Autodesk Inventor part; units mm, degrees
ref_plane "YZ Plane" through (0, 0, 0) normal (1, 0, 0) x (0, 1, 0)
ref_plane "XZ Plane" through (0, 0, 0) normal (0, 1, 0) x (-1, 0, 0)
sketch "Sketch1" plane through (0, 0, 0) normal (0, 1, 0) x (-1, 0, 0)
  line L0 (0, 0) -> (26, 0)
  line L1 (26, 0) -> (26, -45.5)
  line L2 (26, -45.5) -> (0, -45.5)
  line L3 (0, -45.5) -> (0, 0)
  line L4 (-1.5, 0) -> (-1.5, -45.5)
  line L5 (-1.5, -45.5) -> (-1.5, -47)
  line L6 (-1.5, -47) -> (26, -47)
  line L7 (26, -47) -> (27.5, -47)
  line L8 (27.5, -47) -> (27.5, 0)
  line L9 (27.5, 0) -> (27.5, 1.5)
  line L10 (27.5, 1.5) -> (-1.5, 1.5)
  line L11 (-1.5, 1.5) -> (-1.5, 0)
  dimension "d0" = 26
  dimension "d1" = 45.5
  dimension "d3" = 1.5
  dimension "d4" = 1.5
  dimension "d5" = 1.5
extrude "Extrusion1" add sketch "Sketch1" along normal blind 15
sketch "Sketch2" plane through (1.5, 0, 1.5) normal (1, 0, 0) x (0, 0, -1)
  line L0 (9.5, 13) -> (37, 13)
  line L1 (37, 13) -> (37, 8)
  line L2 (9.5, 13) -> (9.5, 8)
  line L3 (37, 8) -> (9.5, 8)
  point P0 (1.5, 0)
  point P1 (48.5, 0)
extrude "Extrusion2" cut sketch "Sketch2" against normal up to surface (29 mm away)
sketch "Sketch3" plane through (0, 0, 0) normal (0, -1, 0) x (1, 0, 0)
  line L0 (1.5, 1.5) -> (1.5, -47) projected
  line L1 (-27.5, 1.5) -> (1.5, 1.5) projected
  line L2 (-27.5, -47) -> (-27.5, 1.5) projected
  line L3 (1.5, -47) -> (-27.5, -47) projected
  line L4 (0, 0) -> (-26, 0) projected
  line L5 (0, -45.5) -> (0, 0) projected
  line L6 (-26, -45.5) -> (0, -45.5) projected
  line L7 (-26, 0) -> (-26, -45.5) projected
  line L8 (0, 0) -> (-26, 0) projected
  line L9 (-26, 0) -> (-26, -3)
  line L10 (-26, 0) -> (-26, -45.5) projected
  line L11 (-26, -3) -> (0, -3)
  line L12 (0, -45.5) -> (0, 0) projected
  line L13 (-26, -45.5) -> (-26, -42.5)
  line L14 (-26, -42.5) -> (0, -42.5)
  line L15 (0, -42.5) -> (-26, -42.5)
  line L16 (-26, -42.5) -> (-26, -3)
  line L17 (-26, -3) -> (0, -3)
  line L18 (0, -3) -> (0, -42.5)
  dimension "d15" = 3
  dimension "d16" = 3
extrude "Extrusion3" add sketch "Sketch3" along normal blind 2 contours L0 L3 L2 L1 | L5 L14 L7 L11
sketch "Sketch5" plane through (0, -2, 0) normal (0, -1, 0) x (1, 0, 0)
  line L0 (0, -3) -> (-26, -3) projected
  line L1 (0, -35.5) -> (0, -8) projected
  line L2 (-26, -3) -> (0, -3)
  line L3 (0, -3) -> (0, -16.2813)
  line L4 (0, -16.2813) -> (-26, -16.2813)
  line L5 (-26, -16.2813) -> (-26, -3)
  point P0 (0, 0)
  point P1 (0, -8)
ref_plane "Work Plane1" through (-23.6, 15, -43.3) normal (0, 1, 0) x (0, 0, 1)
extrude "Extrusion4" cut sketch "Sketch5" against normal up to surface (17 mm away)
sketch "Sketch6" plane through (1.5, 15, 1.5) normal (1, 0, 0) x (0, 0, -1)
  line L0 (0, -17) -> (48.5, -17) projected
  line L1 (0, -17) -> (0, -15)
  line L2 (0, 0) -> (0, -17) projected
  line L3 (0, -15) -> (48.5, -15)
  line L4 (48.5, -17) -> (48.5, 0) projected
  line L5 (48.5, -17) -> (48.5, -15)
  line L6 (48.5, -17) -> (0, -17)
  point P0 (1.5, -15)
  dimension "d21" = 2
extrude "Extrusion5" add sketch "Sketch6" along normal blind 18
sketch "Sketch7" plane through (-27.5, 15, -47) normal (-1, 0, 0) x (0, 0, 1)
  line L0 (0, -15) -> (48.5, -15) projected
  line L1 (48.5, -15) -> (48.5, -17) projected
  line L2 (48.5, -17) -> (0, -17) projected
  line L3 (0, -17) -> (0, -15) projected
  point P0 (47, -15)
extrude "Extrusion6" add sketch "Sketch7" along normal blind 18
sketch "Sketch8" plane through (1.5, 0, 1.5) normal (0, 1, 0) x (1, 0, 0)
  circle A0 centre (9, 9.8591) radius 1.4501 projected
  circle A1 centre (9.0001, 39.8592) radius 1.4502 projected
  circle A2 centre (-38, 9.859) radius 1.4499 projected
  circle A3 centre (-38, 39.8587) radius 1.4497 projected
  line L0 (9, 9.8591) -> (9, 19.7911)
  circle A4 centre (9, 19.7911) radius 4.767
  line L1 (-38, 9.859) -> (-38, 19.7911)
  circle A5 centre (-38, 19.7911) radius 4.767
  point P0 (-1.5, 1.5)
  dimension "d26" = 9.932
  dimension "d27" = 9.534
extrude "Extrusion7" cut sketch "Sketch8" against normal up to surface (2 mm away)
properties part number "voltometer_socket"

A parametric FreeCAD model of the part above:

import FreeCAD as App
import Part
import Sketcher
Q = App.Units.Quantity

doc = App.newDocument("Part")
body = doc.addObject("PartDesign::Body", "Body")

sketch1 = body.newObject("Sketcher::SketchObject", "Sketch")
sketch1.AttachmentSupport = (doc.getObject("XZ_Plane"), [""])
sketch1.MapMode = "FlatFace"
sketch1.addGeometry(Part.LineSegment(App.Vector(2, 2, 0), App.Vector(2, -47, 0)), False)
sketch1.addGeometry(Part.LineSegment(App.Vector(2, -47, 0), App.Vector(-28, -47, 0)), False)
sketch1.addGeometry(Part.LineSegment(App.Vector(-28, -47, 0), App.Vector(-28, 2, 0)), False)
sketch1.addGeometry(Part.LineSegment(App.Vector(-28, 2, 0), App.Vector(2, 2, 0)), False)
sketch1.addGeometry(Part.LineSegment(App.Vector(0, -46, 0), App.Vector(0, 0, 0)), False)
sketch1.addGeometry(Part.LineSegment(App.Vector(0, 0, 0), App.Vector(-26, 0, 0)), False)
sketch1.addGeometry(Part.LineSegment(App.Vector(-26, 0, 0), App.Vector(-26, -46, 0)), False)
sketch1.addGeometry(Part.LineSegment(App.Vector(-26, -46, 0), App.Vector(0, -46, 0)), False)
sketch1.addConstraint(Sketcher.Constraint("Coincident", 0, 2, 1, 1))
sketch1.addConstraint(Sketcher.Constraint("Coincident", 1, 2, 2, 1))
sketch1.addConstraint(Sketcher.Constraint("Coincident", 2, 2, 3, 1))
sketch1.addConstraint(Sketcher.Constraint("Coincident", 3, 2, 0, 1))
sketch1.addConstraint(Sketcher.Constraint("Coincident", 4, 2, 5, 1))
sketch1.addConstraint(Sketcher.Constraint("Coincident", 5, 2, 6, 1))
sketch1.addConstraint(Sketcher.Constraint("Coincident", 6, 2, 7, 1))
sketch1.addConstraint(Sketcher.Constraint("Coincident", 7, 2, 4, 1))
sketch1.addConstraint(Sketcher.Constraint("Vertical", 0))
sketch1.addConstraint(Sketcher.Constraint("Horizontal", 1))
sketch1.addConstraint(Sketcher.Constraint("Vertical", 2))
sketch1.addConstraint(Sketcher.Constraint("Horizontal", 3))
sketch1.addConstraint(Sketcher.Constraint("Vertical", 4))
sketch1.addConstraint(Sketcher.Constraint("Horizontal", 5))
sketch1.addConstraint(Sketcher.Constraint("Vertical", 6))
sketch1.addConstraint(Sketcher.Constraint("Horizontal", 7))
sketch1.addConstraint(Sketcher.Constraint("Coincident", 4, 2, -1, 1))
sketch1.addConstraint(Sketcher.Constraint("DistanceX", 5, 2, 5, 1, Q("26 mm")))
sketch1.addConstraint(Sketcher.Constraint("DistanceY", 4, 1, 4, 2, Q("45.5 mm")))
sketch1.addConstraint(Sketcher.Constraint("DistanceX", -1, 1, 0, 2, Q("1.5 mm")))
sketch1.addConstraint(Sketcher.Constraint("DistanceY", -1, 1, 2, 2, Q("1.5 mm")))
sketch1.addConstraint(Sketcher.Constraint("DistanceX", 2, 2, 5, 2, Q("1.5 mm")))
sketch1.addConstraint(Sketcher.Constraint("DistanceY", 1, 2, 6, 2, Q("1.5 mm")))
pad1 = body.newObject("PartDesign::Pad", "Pad")
pad1.Profile = sketch1
pad1.Length = 15
pad1.Reversed = True

sketch2 = body.newObject("Sketcher::SketchObject", "Sketch001")
sketch2.AttachmentSupport = (doc.getObject("YZ_Plane"), [""])
sketch2.MapMode = "FlatFace"
sketch2.AttachmentOffset = App.Placement(App.Vector(0, 0, 1.5), App.Rotation())
sketch2.addGeometry(Part.LineSegment(App.Vector(13, -36, 0), App.Vector(13, -8, 0)), False)
sketch2.addGeometry(Part.LineSegment(App.Vector(13, -8, 0), App.Vector(8, -8, 0)), False)
sketch2.addGeometry(Part.LineSegment(App.Vector(8, -8, 0), App.Vector(8, -36, 0)), False)
sketch2.addGeometry(Part.LineSegment(App.Vector(8, -36, 0), App.Vector(13, -36, 0)), False)
sketch2.addConstraint(Sketcher.Constraint("Coincident", 0, 2, 1, 1))
sketch2.addConstraint(Sketcher.Constraint("Coincident", 1, 2, 2, 1))
sketch2.addConstraint(Sketcher.Constraint("Coincident", 2, 2, 3, 1))
sketch2.addConstraint(Sketcher.Constraint("Coincident", 3, 2, 0, 1))
sketch2.addConstraint(Sketcher.Constraint("Vertical", 0))
sketch2.addConstraint(Sketcher.Constraint("Horizontal", 1))
sketch2.addConstraint(Sketcher.Constraint("Vertical", 2))
sketch2.addConstraint(Sketcher.Constraint("Horizontal", 3))
sketch2.addConstraint(Sketcher.Constraint("DistanceX", 1, 2, 1, 1, Q("5 mm")))
sketch2.addConstraint(Sketcher.Constraint("DistanceY", 0, 1, 0, 2, Q("27.5 mm")))
sketch2.addConstraint(Sketcher.Constraint("DistanceX", -1, 1, 0, 2, Q("13 mm")))
sketch2.addConstraint(Sketcher.Constraint("DistanceY", 0, 2, -1, 1, Q("8 mm")))
pocket1 = body.newObject("PartDesign::Pocket", "Pocket")
pocket1.Profile = sketch2
pocket1.Length = 29

sketch3 = body.newObject("Sketcher::SketchObject", "Sketch002")
sketch3.AttachmentSupport = (doc.getObject("XZ_Plane"), [""])
sketch3.MapMode = "FlatFace"
sketch3.addGeometry(Part.LineSegment(App.Vector(1.5, -47, 0), App.Vector(1.5, 1.5, 0)), False)
sketch3.addGeometry(Part.LineSegment(App.Vector(1.5, 1.5, 0), App.Vector(-27.5, 1.5, 0)), False)
sketch3.addGeometry(Part.LineSegment(App.Vector(-27.5, 1.5, 0), App.Vector(-27.5, -47, 0)), False)
sketch3.addGeometry(Part.LineSegment(App.Vector(-27.5, -47, 0), App.Vector(1.5, -47, 0)), False)
sketch3.addGeometry(Part.LineSegment(App.Vector(-26, 0, 0), App.Vector(0, 0, 0)), False)
sketch3.addGeometry(Part.LineSegment(App.Vector(0, 0, 0), App.Vector(0, -3, 0)), False)
sketch3.addGeometry(Part.LineSegment(App.Vector(0, -3, 0), App.Vector(-26, -3, 0)), False)
sketch3.addGeometry(Part.LineSegment(App.Vector(-26, -3, 0), App.Vector(-26, 0, 0)), False)
sketch3.addGeometry(Part.LineSegment(App.Vector(-26, -45.5, 0), App.Vector(-26, -42.5, 0)), False)
sketch3.addGeometry(Part.LineSegment(App.Vector(-26, -42.5, 0), App.Vector(0, -42.5, 0)), False)
sketch3.addGeometry(Part.LineSegment(App.Vector(0, -42.5, 0), App.Vector(0, -45.5, 0)), False)
sketch3.addGeometry(Part.LineSegment(App.Vector(0, -45.5, 0), App.Vector(-26, -45.5, 0)), False)
sketch3.addConstraint(Sketcher.Constraint("Coincident", 0, 2, 1, 1))
sketch3.addConstraint(Sketcher.Constraint("Coincident", 1, 2, 2, 1))
sketch3.addConstraint(Sketcher.Constraint("Coincident", 2, 2, 3, 1))
sketch3.addConstraint(Sketcher.Constraint("Coincident", 3, 2, 0, 1))
sketch3.addConstraint(Sketcher.Constraint("Coincident", 4, 2, 5, 1))
sketch3.addConstraint(Sketcher.Constraint("Coincident", 5, 2, 6, 1))
sketch3.addConstraint(Sketcher.Constraint("Coincident", 6, 2, 7, 1))
sketch3.addConstraint(Sketcher.Constraint("Coincident", 7, 2, 4, 1))
sketch3.addConstraint(Sketcher.Constraint("Coincident", 8, 2, 9, 1))
sketch3.addConstraint(Sketcher.Constraint("Coincident", 9, 2, 10, 1))
sketch3.addConstraint(Sketcher.Constraint("Coincident", 10, 2, 11, 1))
sketch3.addConstraint(Sketcher.Constraint("Coincident", 11, 2, 8, 1))
sketch3.addConstraint(Sketcher.Constraint("Vertical", 0))
sketch3.addConstraint(Sketcher.Constraint("Horizontal", 1))
sketch3.addConstraint(Sketcher.Constraint("Vertical", 2))
sketch3.addConstraint(Sketcher.Constraint("Horizontal", 3))
sketch3.addConstraint(Sketcher.Constraint("Horizontal", 4))
sketch3.addConstraint(Sketcher.Constraint("Vertical", 5))
sketch3.addConstraint(Sketcher.Constraint("Horizontal", 6))
sketch3.addConstraint(Sketcher.Constraint("Vertical", 7))
sketch3.addConstraint(Sketcher.Constraint("Vertical", 8))
sketch3.addConstraint(Sketcher.Constraint("Horizontal", 9))
sketch3.addConstraint(Sketcher.Constraint("Vertical", 10))
sketch3.addConstraint(Sketcher.Constraint("Horizontal", 11))
sketch3.addConstraint(Sketcher.Constraint("Coincident", 4, 2, -1, 1))
sketch3.addConstraint(Sketcher.Constraint("PointOnObject", 9, 2, -2))
sketch3.addConstraint(Sketcher.Constraint("Vertical", 7, 2, 8, 2))
sketch3.addConstraint(Sketcher.Constraint("Equal", 7, 8))
sketch3.addConstraint(Sketcher.Constraint("DistanceY", 5, 2, 5, 1, Q("3 mm")))
sketch3.addConstraint(Sketcher.Constraint("DistanceX", 1, 2, 1, 1, Q("29 mm")))
sketch3.addConstraint(Sketcher.Constraint("DistanceX", 4, 1, 4, 2, Q("26 mm")))
sketch3.addConstraint(Sketcher.Constraint("DistanceY", 0, 1, 0, 2, Q("48.5 mm")))
sketch3.addConstraint(Sketcher.Constraint("DistanceY", 2, 2, -1, 1, Q("47 mm")))
sketch3.addConstraint(Sketcher.Constraint("DistanceY", 8, 2, 1, 2, Q("44 mm")))
sketch3.addConstraint(Sketcher.Constraint("DistanceX", -1, 1, 0, 2, Q("1.5 mm")))
pad2 = body.newObject("PartDesign::Pad", "Pad001")
pad2.Profile = sketch3
pad2.Length = 2

sketch4 = body.newObject("Sketcher::SketchObject", "Sketch003")
sketch4.AttachmentSupport = (doc.getObject("XZ_Plane"), [""])
sketch4.MapMode = "FlatFace"
sketch4.AttachmentOffset = App.Placement(App.Vector(0, 0, 2), App.Rotation())
sketch4.addGeometry(Part.LineSegment(App.Vector(0, -16, 0), App.Vector(0, -3, 0)), False)
sketch4.addGeometry(Part.LineSegment(App.Vector(0, -3, 0), App.Vector(-26, -3, 0)), False)
sketch4.addGeometry(Part.LineSegment(App.Vector(-26, -3, 0), App.Vector(-26, -16, 0)), False)
sketch4.addGeometry(Part.LineSegment(App.Vector(-26, -16, 0), App.Vector(0, -16, 0)), False)
sketch4.addConstraint(Sketcher.Constraint("Coincident", 0, 2, 1, 1))
sketch4.addConstraint(Sketcher.Constraint("Coincident", 1, 2, 2, 1))
sketch4.addConstraint(Sketcher.Constraint("Coincident", 2, 2, 3, 1))
sketch4.addConstraint(Sketcher.Constraint("Coincident", 3, 2, 0, 1))
sketch4.addConstraint(Sketcher.Constraint("Vertical", 0))
sketch4.addConstraint(Sketcher.Constraint("Horizontal", 1))
sketch4.addConstraint(Sketcher.Constraint("Vertical", 2))
sketch4.addConstraint(Sketcher.Constraint("Horizontal", 3))
sketch4.addConstraint(Sketcher.Constraint("PointOnObject", 0, 2, -2))
sketch4.addConstraint(Sketcher.Constraint("DistanceX", 1, 2, 1, 1, Q("26 mm")))
sketch4.addConstraint(Sketcher.Constraint("DistanceY", 0, 2, -1, 1, Q("3 mm")))
sketch4.addConstraint(Sketcher.Constraint("DistanceY", 0, 1, 0, 2, Q("13.2813 mm")))
pocket2 = body.newObject("PartDesign::Pocket", "Pocket001")
pocket2.Profile = sketch4
pocket2.Length = 17

sketch5 = body.newObject("Sketcher::SketchObject", "Sketch004")
sketch5.AttachmentSupport = (doc.getObject("YZ_Plane"), [""])
sketch5.MapMode = "FlatFace"
sketch5.AttachmentOffset = App.Placement(App.Vector(0, 0, 1.5), App.Rotation())
sketch5.addGeometry(Part.LineSegment(App.Vector(0, 1.5, 0), App.Vector(-2, 1.5, 0)), False)
sketch5.addGeometry(Part.LineSegment(App.Vector(-2, 1.5, 0), App.Vector(-2, -47, 0)), False)
sketch5.addGeometry(Part.LineSegment(App.Vector(-2, -47, 0), App.Vector(0, -47, 0)), False)
sketch5.addGeometry(Part.LineSegment(App.Vector(0, -47, 0), App.Vector(0, 1.5, 0)), False)
sketch5.addConstraint(Sketcher.Constraint("Coincident", 0, 2, 1, 1))
sketch5.addConstraint(Sketcher.Constraint("Coincident", 1, 2, 2, 1))
sketch5.addConstraint(Sketcher.Constraint("Coincident", 2, 2, 3, 1))
sketch5.addConstraint(Sketcher.Constraint("Coincident", 3, 2, 0, 1))
sketch5.addConstraint(Sketcher.Constraint("Horizontal", 0))
sketch5.addConstraint(Sketcher.Constraint("Vertical", 1))
sketch5.addConstraint(Sketcher.Constraint("Horizontal", 2))
sketch5.addConstraint(Sketcher.Constraint("Vertical", 3))
sketch5.addConstraint(Sketcher.Constraint("PointOnObject", 2, 2, -2))
sketch5.addConstraint(Sketcher.Constraint("DistanceX", 0, 2, 0, 1, Q("2 mm")))
sketch5.addConstraint(Sketcher.Constraint("DistanceY", 1, 2, 1, 1, Q("48.5 mm")))
sketch5.addConstraint(Sketcher.Constraint("DistanceY", 1, 2, -1, 1, Q("47 mm")))
pad3 = body.newObject("PartDesign::Pad", "Pad002")
pad3.Profile = sketch5
pad3.Length = 18

sketch6 = body.newObject("Sketcher::SketchObject", "Sketch005")
sketch6.AttachmentSupport = (doc.getObject("YZ_Plane"), [""])
sketch6.MapMode = "FlatFace"
sketch6.AttachmentOffset = App.Placement(App.Vector(0, 0, -27.5), App.Rotation())
sketch6.addGeometry(Part.LineSegment(App.Vector(0, 1.5, 0), App.Vector(0, -47, 0)), False)
sketch6.addGeometry(Part.LineSegment(App.Vector(0, -47, 0), App.Vector(-2, -47, 0)), False)
sketch6.addGeometry(Part.LineSegment(App.Vector(-2, -47, 0), App.Vector(-2, 1.5, 0)), False)
sketch6.addGeometry(Part.LineSegment(App.Vector(-2, 1.5, 0), App.Vector(0, 1.5, 0)), False)
sketch6.addConstraint(Sketcher.Constraint("Coincident", 0, 2, 1, 1))
sketch6.addConstraint(Sketcher.Constraint("Coincident", 1, 2, 2, 1))
sketch6.addConstraint(Sketcher.Constraint("Coincident", 2, 2, 3, 1))
sketch6.addConstraint(Sketcher.Constraint("Coincident", 3, 2, 0, 1))
sketch6.addConstraint(Sketcher.Constraint("Vertical", 0))
sketch6.addConstraint(Sketcher.Constraint("Horizontal", 1))
sketch6.addConstraint(Sketcher.Constraint("Vertical", 2))
sketch6.addConstraint(Sketcher.Constraint("Horizontal", 3))
sketch6.addConstraint(Sketcher.Constraint("PointOnObject", 0, 2, -2))
sketch6.addConstraint(Sketcher.Constraint("DistanceX", 1, 2, 1, 1, Q("2 mm")))
sketch6.addConstraint(Sketcher.Constraint("DistanceY", 0, 2, 0, 1, Q("48.5 mm")))
sketch6.addConstraint(Sketcher.Constraint("DistanceY", 0, 2, -1, 1, Q("47 mm")))
pad4 = body.newObject("PartDesign::Pad", "Pad003")
pad4.Profile = sketch6
pad4.Length = 18
pad4.Reversed = True

sketch7 = body.newObject("Sketcher::SketchObject", "Sketch006")
sketch7.AttachmentSupport = (doc.getObject("XZ_Plane"), [""])
sketch7.MapMode = "FlatFace"
sketch7.addGeometry(Part.Circle(App.Vector(10.5, -8.4, 0), App.Vector(0, 0, 1), 1.5), False)
sketch7.addGeometry(Part.Circle(App.Vector(10.5, -18.3, 0), App.Vector(0, 0, 1), 4.8), False)
sketch7.addGeometry(Part.Circle(App.Vector(10.5, -38.4, 0), App.Vector(0, 0, 1), 1.5), False)
sketch7.addGeometry(Part.Circle(App.Vector(-36.5, -8.4, 0), App.Vector(0, 0, 1), 1.4), False)
sketch7.addGeometry(Part.Circle(App.Vector(-36.5, -18.3, 0), App.Vector(0, 0, 1), 4.8), False)
sketch7.addGeometry(Part.Circle(App.Vector(-36.5, -38.4, 0), App.Vector(0, 0, 1), 1.4), False)
sketch7.addConstraint(Sketcher.Constraint("Equal", 0, 2))
sketch7.addConstraint(Sketcher.Constraint("Equal", 0, 3))
sketch7.addConstraint(Sketcher.Constraint("Equal", 1, 4))
sketch7.addConstraint(Sketcher.Constraint("Equal", 3, 5))
sketch7.addConstraint(Sketcher.Constraint("Horizontal", 0, 3, 3, 3))
sketch7.addConstraint(Sketcher.Constraint("Horizontal", 1, 3, 4, 3))
sketch7.addConstraint(Sketcher.Constraint("Vertical", 0, 3, 1, 3))
sketch7.addConstraint(Sketcher.Constraint("Vertical", 1, 3, 2, 3))
sketch7.addConstraint(Sketcher.Constraint("Vertical", 3, 3, 4, 3))
sketch7.addConstraint(Sketcher.Constraint("Vertical", 4, 3, 5, 3))
sketch7.addConstraint(Sketcher.Constraint("Diameter", 1, Q("9.534 mm")))
sketch7.addConstraint(Sketcher.Constraint("DistanceY", 1, 3, 0, 3, Q("9.932 mm")))
sketch7.addConstraint(Sketcher.Constraint("DistanceY", 2, 3, 0, 3, Q("30 mm")))
sketch7.addConstraint(Sketcher.Constraint("DistanceX", 3, 3, 0, 3, Q("47 mm")))
sketch7.addConstraint(Sketcher.Constraint("Diameter", 0, Q("2.9002 mm")))
sketch7.addConstraint(Sketcher.Constraint("DistanceX", -1, 1, 0, 3, Q("10.5 mm")))
sketch7.addConstraint(Sketcher.Constraint("DistanceY", 0, 3, -1, 1, Q("8.359 mm")))
sketch7.addConstraint(Sketcher.Constraint("DistanceY", 5, 3, -1, 1, Q("38.3587 mm")))
pocket3 = body.newObject("PartDesign::Pocket", "Pocket002")
pocket3.Profile = sketch7
pocket3.Length = 2
pocket3.Reversed = True

doc.recompute()
